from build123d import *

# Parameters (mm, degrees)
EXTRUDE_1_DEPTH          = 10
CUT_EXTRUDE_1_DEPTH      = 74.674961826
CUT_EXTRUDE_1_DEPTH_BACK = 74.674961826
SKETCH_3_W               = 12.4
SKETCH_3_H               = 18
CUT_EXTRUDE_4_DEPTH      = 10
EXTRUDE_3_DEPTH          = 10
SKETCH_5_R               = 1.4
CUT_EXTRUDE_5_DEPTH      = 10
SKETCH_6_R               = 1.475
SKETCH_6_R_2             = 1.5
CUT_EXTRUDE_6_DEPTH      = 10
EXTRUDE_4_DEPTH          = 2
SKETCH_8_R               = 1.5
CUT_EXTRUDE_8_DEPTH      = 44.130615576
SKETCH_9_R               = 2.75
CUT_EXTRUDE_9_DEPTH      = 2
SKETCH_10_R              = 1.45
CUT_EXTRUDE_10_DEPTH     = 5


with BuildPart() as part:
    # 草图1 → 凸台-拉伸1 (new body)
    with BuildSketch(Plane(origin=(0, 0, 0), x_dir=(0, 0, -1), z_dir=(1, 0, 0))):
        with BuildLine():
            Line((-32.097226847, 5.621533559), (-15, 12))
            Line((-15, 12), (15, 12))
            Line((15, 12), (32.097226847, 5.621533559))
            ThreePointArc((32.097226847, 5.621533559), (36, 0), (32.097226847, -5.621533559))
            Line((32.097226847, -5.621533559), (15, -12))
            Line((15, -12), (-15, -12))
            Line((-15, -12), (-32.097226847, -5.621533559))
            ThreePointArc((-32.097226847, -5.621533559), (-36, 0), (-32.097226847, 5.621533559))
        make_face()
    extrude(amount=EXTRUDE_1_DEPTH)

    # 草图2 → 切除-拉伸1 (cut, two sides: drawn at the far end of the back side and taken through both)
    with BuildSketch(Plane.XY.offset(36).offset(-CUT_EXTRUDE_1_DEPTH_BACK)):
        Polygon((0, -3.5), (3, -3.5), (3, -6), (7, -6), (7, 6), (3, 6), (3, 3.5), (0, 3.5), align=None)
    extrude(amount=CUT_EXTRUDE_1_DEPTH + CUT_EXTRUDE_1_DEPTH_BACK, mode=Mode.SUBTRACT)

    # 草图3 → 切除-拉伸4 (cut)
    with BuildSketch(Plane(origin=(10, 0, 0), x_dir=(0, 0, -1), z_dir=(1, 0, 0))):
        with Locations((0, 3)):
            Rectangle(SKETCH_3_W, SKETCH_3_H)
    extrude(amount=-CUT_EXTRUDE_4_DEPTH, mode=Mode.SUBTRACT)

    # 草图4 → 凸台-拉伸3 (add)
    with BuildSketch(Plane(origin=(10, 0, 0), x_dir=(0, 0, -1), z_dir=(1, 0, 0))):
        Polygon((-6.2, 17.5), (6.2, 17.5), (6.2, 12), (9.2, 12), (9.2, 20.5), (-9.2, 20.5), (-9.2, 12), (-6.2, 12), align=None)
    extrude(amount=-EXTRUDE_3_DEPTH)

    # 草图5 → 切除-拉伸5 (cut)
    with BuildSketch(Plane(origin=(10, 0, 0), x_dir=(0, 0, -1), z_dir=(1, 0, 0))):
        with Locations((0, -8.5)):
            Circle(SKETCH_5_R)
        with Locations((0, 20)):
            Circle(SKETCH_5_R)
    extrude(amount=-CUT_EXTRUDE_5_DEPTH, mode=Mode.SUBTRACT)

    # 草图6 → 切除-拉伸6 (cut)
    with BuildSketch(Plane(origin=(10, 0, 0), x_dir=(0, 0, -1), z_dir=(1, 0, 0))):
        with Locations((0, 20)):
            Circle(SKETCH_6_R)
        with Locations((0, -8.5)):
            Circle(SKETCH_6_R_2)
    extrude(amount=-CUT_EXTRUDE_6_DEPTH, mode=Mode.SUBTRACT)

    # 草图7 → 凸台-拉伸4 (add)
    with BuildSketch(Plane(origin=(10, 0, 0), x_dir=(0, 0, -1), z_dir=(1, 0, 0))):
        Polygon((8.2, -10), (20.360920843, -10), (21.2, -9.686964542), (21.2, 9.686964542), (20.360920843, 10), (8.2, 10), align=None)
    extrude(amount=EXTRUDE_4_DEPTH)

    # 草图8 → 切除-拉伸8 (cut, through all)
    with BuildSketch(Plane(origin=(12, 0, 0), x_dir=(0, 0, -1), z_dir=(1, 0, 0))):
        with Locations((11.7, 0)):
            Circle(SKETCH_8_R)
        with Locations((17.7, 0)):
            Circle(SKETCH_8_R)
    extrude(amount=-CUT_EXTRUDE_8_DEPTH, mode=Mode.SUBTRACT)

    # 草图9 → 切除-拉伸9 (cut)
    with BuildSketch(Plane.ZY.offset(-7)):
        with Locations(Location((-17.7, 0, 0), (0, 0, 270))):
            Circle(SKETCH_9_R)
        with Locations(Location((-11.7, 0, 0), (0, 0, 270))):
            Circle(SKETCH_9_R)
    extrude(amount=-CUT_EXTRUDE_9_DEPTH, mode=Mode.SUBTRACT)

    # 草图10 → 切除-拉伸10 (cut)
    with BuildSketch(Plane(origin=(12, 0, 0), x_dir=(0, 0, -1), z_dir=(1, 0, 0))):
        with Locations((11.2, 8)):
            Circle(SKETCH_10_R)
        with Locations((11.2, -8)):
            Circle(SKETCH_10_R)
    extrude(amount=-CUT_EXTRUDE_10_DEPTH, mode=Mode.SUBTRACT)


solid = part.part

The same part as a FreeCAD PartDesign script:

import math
import FreeCAD as App
import Part
import Sketcher
Q = App.Units.Quantity

doc = App.newDocument("Part")
params = doc.addObject("Spreadsheet::Sheet", "Params")
for row, (alias, value) in enumerate([
    ("sketch1_radius", "6 mm"),
    ("sketch1_height", "30 mm"),
    ("pad1_length", "10 mm"),
    ("sketch2_width", "3 mm"),
    ("sketch2_width2", "4 mm"),
    ("sketch2_height", "12 mm"),
    ("sketch2_height2", "7 mm"),
    ("sketch3_width", "18 mm"),
    ("sketch3_height", "12.4 mm"),
    ("pocket2_length", "10 mm"),
    ("sketch4_height", "3 mm"),
    ("sketch4_width", "5.5 mm"),
    ("sketch4_width2", "8.5 mm"),
    ("sketch4_height2", "12.4 mm"),
    ("pad2_length", "10 mm"),
    ("sketch5_diameter", "2.8 mm"),
    ("pocket3_length", "10 mm"),
    ("sketch6_diameter", "3 mm"),
    ("sketch6_diameter2", "2.95 mm"),
    ("pocket4_length", "10 mm"),
    ("sketch7_width", "20 mm"),
    ("pad3_length", "2 mm"),
    ("sketch8_diameter", "3 mm"),
    ("sketch9_diameter", "5.5 mm"),
    ("pocket6_length", "2 mm"),
    ("sketch10_diameter", "2.9 mm"),
    ("pocket7_length", "5 mm"),
], start=1):
    params.set(f"A{row}", alias)
    params.set(f"B{row}", "=" + value)
    params.setAlias(f"B{row}", alias)

body = doc.addObject("PartDesign::Body", "Body")

# Sketch on YZ plane
sketch1 = body.newObject("Sketcher::SketchObject", "Sketch")
sketch1.AttachmentSupport = (doc.getObject("YZ_Plane"), [""])
sketch1.MapMode = "FlatFace"
sketch1.addGeometry(Part.LineSegment(App.Vector(12, 15, 0), App.Vector(6, 32, 0)), False)
sketch1.addGeometry(Part.ArcOfCircle(Part.Circle(App.Vector(0, 30, 0), App.Vector(0, 0, 1), 6), math.radians(20), math.radians(160)), False)
sketch1.addGeometry(Part.LineSegment(App.Vector(-6, 32, 0), App.Vector(-12, 15, 0)), False)
sketch1.addGeometry(Part.LineSegment(App.Vector(-12, 15, 0), App.Vector(-12, -15, 0)), False)
sketch1.addGeometry(Part.LineSegment(App.Vector(-12, -15, 0), App.Vector(-6, -32, 0)), False)
sketch1.addGeometry(Part.ArcOfCircle(Part.Circle(App.Vector(0, -30, 0), App.Vector(0, 0, 1), 6), math.radians(-160), math.radians(-20)), False)
sketch1.addGeometry(Part.LineSegment(App.Vector(6, -32, 0), App.Vector(12, -15, 0)), False)
sketch1.addGeometry(Part.LineSegment(App.Vector(12, -15, 0), App.Vector(12, 15, 0)), False)
sketch1.addConstraint(Sketcher.Constraint("Tangent", 0, 2, 1, 1))
sketch1.addConstraint(Sketcher.Constraint("Tangent", 1, 2, 2, 1))
sketch1.addConstraint(Sketcher.Constraint("Coincident", 2, 2, 3, 1))
sketch1.addConstraint(Sketcher.Constraint("Coincident", 3, 2, 4, 1))
sketch1.addConstraint(Sketcher.Constraint("Tangent", 4, 2, 5, 1))
sketch1.addConstraint(Sketcher.Constraint("Tangent", 5, 2, 6, 1))
sketch1.addConstraint(Sketcher.Constraint("Coincident", 6, 2, 7, 1))
sketch1.addConstraint(Sketcher.Constraint("Coincident", 7, 2, 0, 1))
sketch1.addConstraint(Sketcher.Constraint("Vertical", 3))
sketch1.addConstraint(Sketcher.Constraint("Vertical", 7))
sketch1.addConstraint(Sketcher.Constraint("Equal", 1, 5))
sketch1.addConstraint(Sketcher.Constraint("Symmetric", 1, 3, 5, 3, -1, 1))
sketch1.addConstraint(Sketcher.Constraint("Symmetric", 2, 2, 6, 2, -1, 1))
sketch1.addConstraint(Sketcher.Constraint("Symmetric", 0, 2, 1, 2, -2))
sketch1.addConstraint(Sketcher.Constraint("Parallel", 0, 4))
sketch1.addConstraint(Sketcher.Constraint("Radius", 1, Q("6 mm")))
sketch1.addConstraint(Sketcher.Constraint("DistanceY", 3, 2, 3, 1, Q("30 mm")))
sketch1.addConstraint(Sketcher.Constraint("DistanceY", -1, 1, 1, 3, Q("30 mm")))
sketch1.addConstraint(Sketcher.Constraint("DistanceX", 2, 2, -1, 1, Q("12 mm")))
sketch1.setExpression("Constraints[15]", "Params.sketch1_radius")
sketch1.setExpression("Constraints[16]", "Params.sketch1_height")
pad1 = body.newObject("PartDesign::Pad", "Pad")
pad1.Profile = sketch1
pad1.setExpression("Length", "Params.pad1_length")

# Sketch on XY plane
sketch2 = body.newObject("Sketcher::SketchObject", "Sketch001")
sketch2.AttachmentSupport = (doc.getObject("XY_Plane"), [""])
sketch2.MapMode = "FlatFace"
sketch2.AttachmentOffset = App.Placement(App.Vector(0, 0, 36), App.Rotation())
sketch2.addGeometry(Part.LineSegment(App.Vector(0, -3.5, 0), App.Vector(3, -3.5, 0)), False)
sketch2.addGeometry(Part.LineSegment(App.Vector(3, -3.5, 0), App.Vector(3, -6, 0)), False)
sketch2.addGeometry(Part.LineSegment(App.Vector(3, -6, 0), App.Vector(7, -6, 0)), False)
sketch2.addGeometry(Part.LineSegment(App.Vector(7, -6, 0), App.Vector(7, 6, 0)), False)
sketch2.addGeometry(Part.LineSegment(App.Vector(7, 6, 0), App.Vector(3, 6, 0)), False)
sketch2.addGeometry(Part.LineSegment(App.Vector(3, 6, 0), App.Vector(3, 3.5, 0)), False)
sketch2.addGeometry(Part.LineSegment(App.Vector(3, 3.5, 0), App.Vector(0, 3.5, 0)), False)
sketch2.addGeometry(Part.LineSegment(App.Vector(0, 3.5, 0), App.Vector(0, -3.5, 0)), False)
sketch2.addConstraint(Sketcher.Constraint("Coincident", 0, 2, 1, 1))
sketch2.addConstraint(Sketcher.Constraint("Coincident", 1, 2, 2, 1))
sketch2.addConstraint(Sketcher.Constraint("Coincident", 2, 2, 3, 1))
sketch2.addConstraint(Sketcher.Constraint("Coincident", 3, 2, 4, 1))
sketch2.addConstraint(Sketcher.Constraint("Coincident", 4, 2, 5, 1))
sketch2.addConstraint(Sketcher.Constraint("Coincident", 5, 2, 6, 1))
sketch2.addConstraint(Sketcher.Constraint("Coincident", 6, 2, 7, 1))
sketch2.addConstraint(Sketcher.Constraint("Coincident", 7, 2, 0, 1))
sketch2.addConstraint(Sketcher.Constraint("Horizontal", 0))
sketch2.addConstraint(Sketcher.Constraint("Vertical", 1))
sketch2.addConstraint(Sketcher.Constraint("Horizontal", 2))
sketch2.addConstraint(Sketcher.Constraint("Vertical", 3))
sketch2.addConstraint(Sketcher.Constraint("Horizontal", 4))
sketch2.addConstraint(Sketcher.Constraint("Vertical", 5))
sketch2.addConstraint(Sketcher.Constraint("Horizontal", 6))
sketch2.addConstraint(Sketcher.Constraint("Vertical", 7))
sketch2.addConstraint(Sketcher.Constraint("Symmetric", 6, 2, 7, 2, -1, 1))
sketch2.addConstraint(Sketcher.Constraint("Symmetric", 1, 2, 4, 2, -1))
sketch2.addConstraint(Sketcher.Constraint("DistanceX", 0, 1, 0, 2, Q("3 mm")))
sketch2.addConstraint(Sketcher.Constraint("DistanceX", 2, 1, 2, 2, Q("4 mm")))
sketch2.addConstraint(Sketcher.Constraint("DistanceY", 3, 1, 3, 2, Q("12 mm")))
sketch2.addConstraint(Sketcher.Constraint("DistanceY", 7, 2, 7, 1, Q("7 mm")))
sketch2.setExpression("Constraints[18]", "Params.sketch2_width")
sketch2.setExpression("Constraints[19]", "Params.sketch2_width2")
sketch2.setExpression("Constraints[20]", "Params.sketch2_height")
sketch2.setExpression("Constraints[21]", "Params.sketch2_height2")
pocket1 = body.newObject("PartDesign::Pocket", "Pocket")
pocket1.Profile = sketch2
pocket1.Type = "ThroughAll"
pocket1.Midplane = True

# Sketch on YZ plane
sketch3 = body.newObject("Sketcher::SketchObject", "Sketch002")
sketch3.AttachmentSupport = (doc.getObject("YZ_Plane"), [""])
sketch3.MapMode = "FlatFace"
sketch3.AttachmentOffset = App.Placement(App.Vector(0, 0, 10), App.Rotation())
sketch3.addGeometry(Part.LineSegment(App.Vector(12, 6, 0), App.Vector(-6, 6, 0)), False)
sketch3.addGeometry(Part.LineSegment(App.Vector(-6, 6, 0), App.Vector(-6, -6, 0)), False)
sketch3.addGeometry(Part.LineSegment(App.Vector(-6, -6, 0), App.Vector(12, -6, 0)), False)
sketch3.addGeometry(Part.LineSegment(App.Vector(12, -6, 0), App.Vector(12, 6, 0)), False)
sketch3.addConstraint(Sketcher.Constraint("Coincident", 0, 2, 1, 1))
sketch3.addConstraint(Sketcher.Constraint("Coincident", 1, 2, 2, 1))
sketch3.addConstraint(Sketcher.Constraint("Coincident", 2, 2, 3, 1))
sketch3.addConstraint(Sketcher.Constraint("Coincident", 3, 2, 0, 1))
sketch3.addConstraint(Sketcher.Constraint("Horizontal", 0))
sketch3.addConstraint(Sketcher.Constraint("Vertical", 1))
sketch3.addConstraint(Sketcher.Constraint("Horizontal", 2))
sketch3.addConstraint(Sketcher.Constraint("Vertical", 3))
sketch3.addConstraint(Sketcher.Constraint("DistanceX", 0, 2, 0, 1, Q("18 mm")))
sketch3.addConstraint(Sketcher.Constraint("DistanceY", 1, 2, 1, 1, Q("12.4 mm")))
sketch3.addConstraint(Sketcher.Constraint("DistanceX", 0, 2, -1, 1, Q("6 mm")))
sketch3.addConstraint(Sketcher.Constraint("DistanceY", -1, 1, 0, 2, Q("6.2 mm")))
sketch3.setExpression("Constraints[8]", "Params.sketch3_width")
sketch3.setExpression("Constraints[9]", "Params.sketch3_height")
pocket2 = body.newObject("PartDesign::Pocket", "Pocket001")
pocket2.Profile = sketch3
pocket2.setExpression("Length", "Params.pocket2_length")

# Sketch on YZ plane
sketch4 = body.newObject("Sketcher::SketchObject", "Sketch003")
sketch4.AttachmentSupport = (doc.getObject("YZ_Plane"), [""])
sketch4.MapMode = "FlatFace"
sketch4.AttachmentOffset = App.Placement(App.Vector(0, 0, 10), App.Rotation())
sketch4.addGeometry(Part.LineSegment(App.Vector(17.5, 6.2, 0), App.Vector(17.5, -6.2, 0)), False)
sketch4.addGeometry(Part.LineSegment(App.Vector(17.5, -6.2, 0), App.Vector(12, -6.2, 0)), False)
sketch4.addGeometry(Part.LineSegment(App.Vector(12, -6.2, 0), App.Vector(12, -9.2, 0)), False)
sketch4.addGeometry(Part.LineSegment(App.Vector(12, -9.2, 0), App.Vector(20.5, -9.2, 0)), False)
sketch4.addGeometry(Part.LineSegment(App.Vector(20.5, -9.2, 0), App.Vector(20.5, 9.2, 0)), False)
sketch4.addGeometry(Part.LineSegment(App.Vector(20.5, 9.2, 0), App.Vector(12, 9.2, 0)), False)
sketch4.addGeometry(Part.LineSegment(App.Vector(12, 9.2, 0), App.Vector(12, 6.2, 0)), False)
sketch4.addGeometry(Part.LineSegment(App.Vector(12, 6.2, 0), App.Vector(17.5, 6.2, 0)), False)
sketch4.addConstraint(Sketcher.Constraint("Coincident", 0, 2, 1, 1))
sketch4.addConstraint(Sketcher.Constraint("Coincident", 1, 2, 2, 1))
sketch4.addConstraint(Sketcher.Constraint("Coincident", 2, 2, 3, 1))
sketch4.addConstraint(Sketcher.Constraint("Coincident", 3, 2, 4, 1))
sketch4.addConstraint(Sketcher.Constraint("Coincident", 4, 2, 5, 1))
sketch4.addConstraint(Sketcher.Constraint("Coincident", 5, 2, 6, 1))
sketch4.addConstraint(Sketcher.Constraint("Coincident", 6, 2, 7, 1))
sketch4.addConstraint(Sketcher.Constraint("Coincident", 7, 2, 0, 1))
sketch4.addConstraint(Sketcher.Constraint("Vertical", 0))
sketch4.addConstraint(Sketcher.Constraint("Horizontal", 1))
sketch4.addConstraint(Sketcher.Constraint("Vertical", 2))
sketch4.addConstraint(Sketcher.Constraint("Horizontal", 3))
sketch4.addConstraint(Sketcher.Constraint("Vertical", 4))
sketch4.addConstraint(Sketcher.Constraint("Horizontal", 5))
sketch4.addConstraint(Sketcher.Constraint("Vertical", 6))
sketch4.addConstraint(Sketcher.Constraint("Horizontal", 7))
sketch4.addConstraint(Sketcher.Constraint("Symmetric", 2, 2, 5, 2, -1))
sketch4.addConstraint(Sketcher.Constraint("Equal", 2, 6))
sketch4.addConstraint(Sketcher.Constraint("DistanceY", 2, 2, 2, 1, Q("3 mm")))
sketch4.addConstraint(Sketcher.Constraint("DistanceX", 1, 2, 1, 1, Q("5.5 mm")))
sketch4.addConstraint(Sketcher.Constraint("DistanceX", 3, 1, 3, 2, Q("8.5 mm")))
sketch4.addConstraint(Sketcher.Constraint("DistanceY", 0, 2, 0, 1, Q("12.4 mm")))
sketch4.addConstraint(Sketcher.Constraint("DistanceX", -1, 1, 1, 2, Q("12 mm")))
sketch4.setExpression("Constraints[18]", "Params.sketch4_height")
sketch4.setExpression("Constraints[19]", "Params.sketch4_width")
sketch4.setExpression("Constraints[20]", "Params.sketch4_width2")
sketch4.setExpression("Constraints[21]", "Params.sketch4_height2")
pad2 = body.newObject("PartDesign::Pad", "Pad001")
pad2.Profile = sketch4
pad2.setExpression("Length", "Params.pad2_length")
pad2.Reversed = True

# Sketch on YZ plane
sketch5 = body.newObject("Sketcher::SketchObject", "Sketch004")
sketch5.AttachmentSupport = (doc.getObject("YZ_Plane"), [""])
sketch5.MapMode = "FlatFace"
sketch5.AttachmentOffset = App.Placement(App.Vector(0, 0, 10), App.Rotation())
sketch5.addGeometry(Part.Circle(App.Vector(-8.5, 0, 0), App.Vector(0, 0, 1), 1.4), False)
sketch5.addGeometry(Part.Circle(App.Vector(20, 0, 0), App.Vector(0, 0, 1), 1.4), False)
sketch5.addConstraint(Sketcher.Constraint("Equal", 0, 1))
sketch5.addConstraint(Sketcher.Constraint("PointOnObject", 0, 3, -1))
sketch5.addConstraint(Sketcher.Constraint("PointOnObject", 1, 3, -1))
sketch5.addConstraint(Sketcher.Constraint("Diameter", 0, Q("2.8 mm")))
sketch5.addConstraint(Sketcher.Constraint("DistanceX", -1, 1, 1, 3, Q("20 mm")))
sketch5.addConstraint(Sketcher.Constraint("DistanceX", 0, 3, -1, 1, Q("8.5 mm")))
sketch5.setExpression("Constraints[3]", "Params.sketch5_diameter")
pocket3 = body.newObject("PartDesign::Pocket", "Pocket002")
pocket3.Profile = sketch5
pocket3.setExpression("Length", "Params.pocket3_length")

# Sketch on YZ plane
sketch6 = body.newObject("Sketcher::SketchObject", "Sketch005")
sketch6.AttachmentSupport = (doc.getObject("YZ_Plane"), [""])
sketch6.MapMode = "FlatFace"
sketch6.AttachmentOffset = App.Placement(App.Vector(0, 0, 10), App.Rotation())
sketch6.addGeometry(Part.Circle(App.Vector(20, 0, 0), App.Vector(0, 0, 1), 1.5), False)
sketch6.addGeometry(Part.Circle(App.Vector(-8.5, 0, 0), App.Vector(0, 0, 1), 1.5), False)
sketch6.addConstraint(Sketcher.Constraint("PointOnObject", 0, 3, -1))
sketch6.addConstraint(Sketcher.Constraint("PointOnObject", 1, 3, -1))
sketch6.addConstraint(Sketcher.Constraint("Diameter", 1, Q("3 mm")))
sketch6.addConstraint(Sketcher.Constraint("Diameter", 0, Q("2.95 mm")))
sketch6.addConstraint(Sketcher.Constraint("DistanceX", -1, 1, 0, 3, Q("20 mm")))
sketch6.addConstraint(Sketcher.Constraint("DistanceX", 1, 3, -1, 1, Q("8.5 mm")))
sketch6.setExpression("Constraints[2]", "Params.sketch6_diameter")
sketch6.setExpression("Constraints[3]", "Params.sketch6_diameter2")
pocket4 = body.newObject("PartDesign::Pocket", "Pocket003")
pocket4.Profile = sketch6
pocket4.setExpression("Length", "Params.pocket4_length")

# Sketch on YZ plane
sketch7 = body.newObject("Sketcher::SketchObject", "Sketch006")
sketch7.AttachmentSupport = (doc.getObject("YZ_Plane"), [""])
sketch7.MapMode = "FlatFace"
sketch7.AttachmentOffset = App.Placement(App.Vector(0, 0, 10), App.Rotation())
sketch7.addGeometry(Part.LineSegment(App.Vector(-10, -8.2, 0), App.Vector(-10, -20.4, 0)), False)
sketch7.addGeometry(Part.LineSegment(App.Vector(-10, -20.4, 0), App.Vector(-9.7, -21.2, 0)), False)
sketch7.addGeometry(Part.LineSegment(App.Vector(-9.7, -21.2, 0), App.Vector(9.7, -21.2, 0)), False)
sketch7.addGeometry(Part.LineSegment(App.Vector(9.7, -21.2, 0), App.Vector(10, -20.4, 0)), False)
sketch7.addGeometry(Part.LineSegment(App.Vector(10, -20.4, 0), App.Vector(10, -8.2, 0)), False)
sketch7.addGeometry(Part.LineSegment(App.Vector(10, -8.2, 0), App.Vector(-10, -8.2, 0)), False)
sketch7.addConstraint(Sketcher.Constraint("Coincident", 0, 2, 1, 1))
sketch7.addConstraint(Sketcher.Constraint("Coincident", 1, 2, 2, 1))
sketch7.addConstraint(Sketcher.Constraint("Coincident", 2, 2, 3, 1))
sketch7.addConstraint(Sketcher.Constraint("Coincident", 3, 2, 4, 1))
sketch7.addConstraint(Sketcher.Constraint("Coincident", 4, 2, 5, 1))
sketch7.addConstraint(Sketcher.Constraint("Coincident", 5, 2, 0, 1))
sketch7.addConstraint(Sketcher.Constraint("Vertical", 0))
sketch7.addConstraint(Sketcher.Constraint("Horizontal", 2))
sketch7.addConstraint(Sketcher.Constraint("Vertical", 4))
sketch7.addConstraint(Sketcher.Constraint("Horizontal", 5))
sketch7.addConstraint(Sketcher.Constraint("Symmetric", 0, 2, 3, 2, -2))
sketch7.addConstraint(Sketcher.Constraint("Equal", 1, 3))
sketch7.addConstraint(Sketcher.Constraint("DistanceX", 5, 2, 5, 1, Q("20 mm")))
sketch7.addConstraint(Sketcher.Constraint("DistanceY", 2, 2, 4, 2, Q("13 mm")))
sketch7.addConstraint(Sketcher.Constraint("DistanceY", 1, 2, -1, 1, Q("21.2 mm")))
sketch7.addConstraint(Sketcher.Constraint("DistanceX", 2, 1, 2, 2, Q("19.373929 mm")))
sketch7.addConstraint(Sketcher.Constraint("DistanceY", 0, 2, 0, 1, Q("12.160921 mm")))
sketch7.setExpression("Constraints[12]", "Params.sketch7_width")
pad3 = body.newObject("PartDesign::Pad", "Pad002")
pad3.Profile = sketch7
pad3.setExpression("Length", "Params.pad3_length")

# Sketch on YZ plane
sketch8 = body.newObject("Sketcher::SketchObject", "Sketch007")
sketch8.AttachmentSupport = (doc.getObject("YZ_Plane"), [""])
sketch8.MapMode = "FlatFace"
sketch8.AttachmentOffset = App.Placement(App.Vector(0, 0, 12), App.Rotation())
sketch8.addGeometry(Part.Circle(App.Vector(0, -11.7, 0), App.Vector(0, 0, 1), 1.5), False)
sketch8.addGeometry(Part.Circle(App.Vector(0, -17.7, 0), App.Vector(0, 0, 1), 1.5), False)
sketch8.addConstraint(Sketcher.Constraint("Equal", 0, 1))
sketch8.addConstraint(Sketcher.Constraint("PointOnObject", 0, 3, -2))
sketch8.addConstraint(Sketcher.Constraint("PointOnObject", 1, 3, -2))
sketch8.addConstraint(Sketcher.Constraint("Diameter", 0, Q("3 mm")))
sketch8.addConstraint(Sketcher.Constraint("DistanceY", 1, 3, 0, 3, Q("6 mm")))
sketch8.addConstraint(Sketcher.Constraint("DistanceY", 0, 3, -1, 1, Q("11.7 mm")))
sketch8.setExpression("Constraints[3]", "Params.sketch8_diameter")
pocket5 = body.newObject("PartDesign::Pocket", "Pocket004")
pocket5.Profile = sketch8
pocket5.Type = "ThroughAll"

# Sketch on YZ plane
sketch9 = body.newObject("Sketcher::SketchObject", "Sketch008")
sketch9.AttachmentSupport = (doc.getObject("YZ_Plane"), [""])
sketch9.MapMode = "FlatFace"
sketch9.AttachmentOffset = App.Placement(App.Vector(0, 0, 7), App.Rotation())
sketch9.addGeometry(Part.Circle(App.Vector(0, -17.7, 0), App.Vector(0, 0, 1), 2.8), False)
sketch9.addGeometry(Part.Circle(App.Vector(0, -11.7, 0), App.Vector(0, 0, 1), 2.8), False)
sketch9.addConstraint(Sketcher.Constraint("Equal", 0, 1))
sketch9.addConstraint(Sketcher.Constraint("PointOnObject", 0, 3, -2))
sketch9.addConstraint(Sketcher.Constraint("PointOnObject", 1, 3, -2))
sketch9.addConstraint(Sketcher.Constraint("Diameter", 0, Q("5.5 mm")))
sketch9.addConstraint(Sketcher.Constraint("DistanceY", 0, 3, 1, 3, Q("6 mm")))
sketch9.addConstraint(Sketcher.Constraint("DistanceY", 0, 3, -1, 1, Q("17.7 mm")))
sketch9.setExpression("Constraints[3]", "Params.sketch9_diameter")
pocket6 = body.newObject("PartDesign::Pocket", "Pocket005")
pocket6.Profile = sketch9
pocket6.setExpression("Length", "Params.pocket6_length")
pocket6.Reversed = True

# Sketch on YZ plane
sketch10 = body.newObject("Sketcher::SketchObject", "Sketch009")
sketch10.AttachmentSupport = (doc.getObject("YZ_Plane"), [""])
sketch10.MapMode = "FlatFace"
sketch10.AttachmentOffset = App.Placement(App.Vector(0, 0, 12), App.Rotation())
sketch10.addGeometry(Part.Circle(App.Vector(8, -11.2, 0), App.Vector(0, 0, 1), 1.4), False)
sketch10.addGeometry(Part.Circle(App.Vector(-8, -11.2, 0), App.Vector(0, 0, 1), 1.4), False)
sketch10.addConstraint(Sketcher.Constraint("Equal", 0, 1))
sketch10.addConstraint(Sketcher.Constraint("Symmetric", 0, 3, 1, 3, -2))
sketch10.addConstraint(Sketcher.Constraint("Diameter", 0, Q("2.9 mm")))
sketch10.addConstraint(Sketcher.Constraint("DistanceX", -1, 1, 0, 3, Q("8 mm")))
sketch10.addConstraint(Sketcher.Constraint("DistanceY", 0, 3, -1, 1, Q("11.2 mm")))
sketch10.setExpression("Constraints[2]", "Params.sketch10_diameter")
pocket7 = body.newObject("PartDesign::Pocket", "Pocket006")
pocket7.Profile = sketch10
pocket7.setExpression("Length", "Params.pocket7_length")

doc.recompute()
